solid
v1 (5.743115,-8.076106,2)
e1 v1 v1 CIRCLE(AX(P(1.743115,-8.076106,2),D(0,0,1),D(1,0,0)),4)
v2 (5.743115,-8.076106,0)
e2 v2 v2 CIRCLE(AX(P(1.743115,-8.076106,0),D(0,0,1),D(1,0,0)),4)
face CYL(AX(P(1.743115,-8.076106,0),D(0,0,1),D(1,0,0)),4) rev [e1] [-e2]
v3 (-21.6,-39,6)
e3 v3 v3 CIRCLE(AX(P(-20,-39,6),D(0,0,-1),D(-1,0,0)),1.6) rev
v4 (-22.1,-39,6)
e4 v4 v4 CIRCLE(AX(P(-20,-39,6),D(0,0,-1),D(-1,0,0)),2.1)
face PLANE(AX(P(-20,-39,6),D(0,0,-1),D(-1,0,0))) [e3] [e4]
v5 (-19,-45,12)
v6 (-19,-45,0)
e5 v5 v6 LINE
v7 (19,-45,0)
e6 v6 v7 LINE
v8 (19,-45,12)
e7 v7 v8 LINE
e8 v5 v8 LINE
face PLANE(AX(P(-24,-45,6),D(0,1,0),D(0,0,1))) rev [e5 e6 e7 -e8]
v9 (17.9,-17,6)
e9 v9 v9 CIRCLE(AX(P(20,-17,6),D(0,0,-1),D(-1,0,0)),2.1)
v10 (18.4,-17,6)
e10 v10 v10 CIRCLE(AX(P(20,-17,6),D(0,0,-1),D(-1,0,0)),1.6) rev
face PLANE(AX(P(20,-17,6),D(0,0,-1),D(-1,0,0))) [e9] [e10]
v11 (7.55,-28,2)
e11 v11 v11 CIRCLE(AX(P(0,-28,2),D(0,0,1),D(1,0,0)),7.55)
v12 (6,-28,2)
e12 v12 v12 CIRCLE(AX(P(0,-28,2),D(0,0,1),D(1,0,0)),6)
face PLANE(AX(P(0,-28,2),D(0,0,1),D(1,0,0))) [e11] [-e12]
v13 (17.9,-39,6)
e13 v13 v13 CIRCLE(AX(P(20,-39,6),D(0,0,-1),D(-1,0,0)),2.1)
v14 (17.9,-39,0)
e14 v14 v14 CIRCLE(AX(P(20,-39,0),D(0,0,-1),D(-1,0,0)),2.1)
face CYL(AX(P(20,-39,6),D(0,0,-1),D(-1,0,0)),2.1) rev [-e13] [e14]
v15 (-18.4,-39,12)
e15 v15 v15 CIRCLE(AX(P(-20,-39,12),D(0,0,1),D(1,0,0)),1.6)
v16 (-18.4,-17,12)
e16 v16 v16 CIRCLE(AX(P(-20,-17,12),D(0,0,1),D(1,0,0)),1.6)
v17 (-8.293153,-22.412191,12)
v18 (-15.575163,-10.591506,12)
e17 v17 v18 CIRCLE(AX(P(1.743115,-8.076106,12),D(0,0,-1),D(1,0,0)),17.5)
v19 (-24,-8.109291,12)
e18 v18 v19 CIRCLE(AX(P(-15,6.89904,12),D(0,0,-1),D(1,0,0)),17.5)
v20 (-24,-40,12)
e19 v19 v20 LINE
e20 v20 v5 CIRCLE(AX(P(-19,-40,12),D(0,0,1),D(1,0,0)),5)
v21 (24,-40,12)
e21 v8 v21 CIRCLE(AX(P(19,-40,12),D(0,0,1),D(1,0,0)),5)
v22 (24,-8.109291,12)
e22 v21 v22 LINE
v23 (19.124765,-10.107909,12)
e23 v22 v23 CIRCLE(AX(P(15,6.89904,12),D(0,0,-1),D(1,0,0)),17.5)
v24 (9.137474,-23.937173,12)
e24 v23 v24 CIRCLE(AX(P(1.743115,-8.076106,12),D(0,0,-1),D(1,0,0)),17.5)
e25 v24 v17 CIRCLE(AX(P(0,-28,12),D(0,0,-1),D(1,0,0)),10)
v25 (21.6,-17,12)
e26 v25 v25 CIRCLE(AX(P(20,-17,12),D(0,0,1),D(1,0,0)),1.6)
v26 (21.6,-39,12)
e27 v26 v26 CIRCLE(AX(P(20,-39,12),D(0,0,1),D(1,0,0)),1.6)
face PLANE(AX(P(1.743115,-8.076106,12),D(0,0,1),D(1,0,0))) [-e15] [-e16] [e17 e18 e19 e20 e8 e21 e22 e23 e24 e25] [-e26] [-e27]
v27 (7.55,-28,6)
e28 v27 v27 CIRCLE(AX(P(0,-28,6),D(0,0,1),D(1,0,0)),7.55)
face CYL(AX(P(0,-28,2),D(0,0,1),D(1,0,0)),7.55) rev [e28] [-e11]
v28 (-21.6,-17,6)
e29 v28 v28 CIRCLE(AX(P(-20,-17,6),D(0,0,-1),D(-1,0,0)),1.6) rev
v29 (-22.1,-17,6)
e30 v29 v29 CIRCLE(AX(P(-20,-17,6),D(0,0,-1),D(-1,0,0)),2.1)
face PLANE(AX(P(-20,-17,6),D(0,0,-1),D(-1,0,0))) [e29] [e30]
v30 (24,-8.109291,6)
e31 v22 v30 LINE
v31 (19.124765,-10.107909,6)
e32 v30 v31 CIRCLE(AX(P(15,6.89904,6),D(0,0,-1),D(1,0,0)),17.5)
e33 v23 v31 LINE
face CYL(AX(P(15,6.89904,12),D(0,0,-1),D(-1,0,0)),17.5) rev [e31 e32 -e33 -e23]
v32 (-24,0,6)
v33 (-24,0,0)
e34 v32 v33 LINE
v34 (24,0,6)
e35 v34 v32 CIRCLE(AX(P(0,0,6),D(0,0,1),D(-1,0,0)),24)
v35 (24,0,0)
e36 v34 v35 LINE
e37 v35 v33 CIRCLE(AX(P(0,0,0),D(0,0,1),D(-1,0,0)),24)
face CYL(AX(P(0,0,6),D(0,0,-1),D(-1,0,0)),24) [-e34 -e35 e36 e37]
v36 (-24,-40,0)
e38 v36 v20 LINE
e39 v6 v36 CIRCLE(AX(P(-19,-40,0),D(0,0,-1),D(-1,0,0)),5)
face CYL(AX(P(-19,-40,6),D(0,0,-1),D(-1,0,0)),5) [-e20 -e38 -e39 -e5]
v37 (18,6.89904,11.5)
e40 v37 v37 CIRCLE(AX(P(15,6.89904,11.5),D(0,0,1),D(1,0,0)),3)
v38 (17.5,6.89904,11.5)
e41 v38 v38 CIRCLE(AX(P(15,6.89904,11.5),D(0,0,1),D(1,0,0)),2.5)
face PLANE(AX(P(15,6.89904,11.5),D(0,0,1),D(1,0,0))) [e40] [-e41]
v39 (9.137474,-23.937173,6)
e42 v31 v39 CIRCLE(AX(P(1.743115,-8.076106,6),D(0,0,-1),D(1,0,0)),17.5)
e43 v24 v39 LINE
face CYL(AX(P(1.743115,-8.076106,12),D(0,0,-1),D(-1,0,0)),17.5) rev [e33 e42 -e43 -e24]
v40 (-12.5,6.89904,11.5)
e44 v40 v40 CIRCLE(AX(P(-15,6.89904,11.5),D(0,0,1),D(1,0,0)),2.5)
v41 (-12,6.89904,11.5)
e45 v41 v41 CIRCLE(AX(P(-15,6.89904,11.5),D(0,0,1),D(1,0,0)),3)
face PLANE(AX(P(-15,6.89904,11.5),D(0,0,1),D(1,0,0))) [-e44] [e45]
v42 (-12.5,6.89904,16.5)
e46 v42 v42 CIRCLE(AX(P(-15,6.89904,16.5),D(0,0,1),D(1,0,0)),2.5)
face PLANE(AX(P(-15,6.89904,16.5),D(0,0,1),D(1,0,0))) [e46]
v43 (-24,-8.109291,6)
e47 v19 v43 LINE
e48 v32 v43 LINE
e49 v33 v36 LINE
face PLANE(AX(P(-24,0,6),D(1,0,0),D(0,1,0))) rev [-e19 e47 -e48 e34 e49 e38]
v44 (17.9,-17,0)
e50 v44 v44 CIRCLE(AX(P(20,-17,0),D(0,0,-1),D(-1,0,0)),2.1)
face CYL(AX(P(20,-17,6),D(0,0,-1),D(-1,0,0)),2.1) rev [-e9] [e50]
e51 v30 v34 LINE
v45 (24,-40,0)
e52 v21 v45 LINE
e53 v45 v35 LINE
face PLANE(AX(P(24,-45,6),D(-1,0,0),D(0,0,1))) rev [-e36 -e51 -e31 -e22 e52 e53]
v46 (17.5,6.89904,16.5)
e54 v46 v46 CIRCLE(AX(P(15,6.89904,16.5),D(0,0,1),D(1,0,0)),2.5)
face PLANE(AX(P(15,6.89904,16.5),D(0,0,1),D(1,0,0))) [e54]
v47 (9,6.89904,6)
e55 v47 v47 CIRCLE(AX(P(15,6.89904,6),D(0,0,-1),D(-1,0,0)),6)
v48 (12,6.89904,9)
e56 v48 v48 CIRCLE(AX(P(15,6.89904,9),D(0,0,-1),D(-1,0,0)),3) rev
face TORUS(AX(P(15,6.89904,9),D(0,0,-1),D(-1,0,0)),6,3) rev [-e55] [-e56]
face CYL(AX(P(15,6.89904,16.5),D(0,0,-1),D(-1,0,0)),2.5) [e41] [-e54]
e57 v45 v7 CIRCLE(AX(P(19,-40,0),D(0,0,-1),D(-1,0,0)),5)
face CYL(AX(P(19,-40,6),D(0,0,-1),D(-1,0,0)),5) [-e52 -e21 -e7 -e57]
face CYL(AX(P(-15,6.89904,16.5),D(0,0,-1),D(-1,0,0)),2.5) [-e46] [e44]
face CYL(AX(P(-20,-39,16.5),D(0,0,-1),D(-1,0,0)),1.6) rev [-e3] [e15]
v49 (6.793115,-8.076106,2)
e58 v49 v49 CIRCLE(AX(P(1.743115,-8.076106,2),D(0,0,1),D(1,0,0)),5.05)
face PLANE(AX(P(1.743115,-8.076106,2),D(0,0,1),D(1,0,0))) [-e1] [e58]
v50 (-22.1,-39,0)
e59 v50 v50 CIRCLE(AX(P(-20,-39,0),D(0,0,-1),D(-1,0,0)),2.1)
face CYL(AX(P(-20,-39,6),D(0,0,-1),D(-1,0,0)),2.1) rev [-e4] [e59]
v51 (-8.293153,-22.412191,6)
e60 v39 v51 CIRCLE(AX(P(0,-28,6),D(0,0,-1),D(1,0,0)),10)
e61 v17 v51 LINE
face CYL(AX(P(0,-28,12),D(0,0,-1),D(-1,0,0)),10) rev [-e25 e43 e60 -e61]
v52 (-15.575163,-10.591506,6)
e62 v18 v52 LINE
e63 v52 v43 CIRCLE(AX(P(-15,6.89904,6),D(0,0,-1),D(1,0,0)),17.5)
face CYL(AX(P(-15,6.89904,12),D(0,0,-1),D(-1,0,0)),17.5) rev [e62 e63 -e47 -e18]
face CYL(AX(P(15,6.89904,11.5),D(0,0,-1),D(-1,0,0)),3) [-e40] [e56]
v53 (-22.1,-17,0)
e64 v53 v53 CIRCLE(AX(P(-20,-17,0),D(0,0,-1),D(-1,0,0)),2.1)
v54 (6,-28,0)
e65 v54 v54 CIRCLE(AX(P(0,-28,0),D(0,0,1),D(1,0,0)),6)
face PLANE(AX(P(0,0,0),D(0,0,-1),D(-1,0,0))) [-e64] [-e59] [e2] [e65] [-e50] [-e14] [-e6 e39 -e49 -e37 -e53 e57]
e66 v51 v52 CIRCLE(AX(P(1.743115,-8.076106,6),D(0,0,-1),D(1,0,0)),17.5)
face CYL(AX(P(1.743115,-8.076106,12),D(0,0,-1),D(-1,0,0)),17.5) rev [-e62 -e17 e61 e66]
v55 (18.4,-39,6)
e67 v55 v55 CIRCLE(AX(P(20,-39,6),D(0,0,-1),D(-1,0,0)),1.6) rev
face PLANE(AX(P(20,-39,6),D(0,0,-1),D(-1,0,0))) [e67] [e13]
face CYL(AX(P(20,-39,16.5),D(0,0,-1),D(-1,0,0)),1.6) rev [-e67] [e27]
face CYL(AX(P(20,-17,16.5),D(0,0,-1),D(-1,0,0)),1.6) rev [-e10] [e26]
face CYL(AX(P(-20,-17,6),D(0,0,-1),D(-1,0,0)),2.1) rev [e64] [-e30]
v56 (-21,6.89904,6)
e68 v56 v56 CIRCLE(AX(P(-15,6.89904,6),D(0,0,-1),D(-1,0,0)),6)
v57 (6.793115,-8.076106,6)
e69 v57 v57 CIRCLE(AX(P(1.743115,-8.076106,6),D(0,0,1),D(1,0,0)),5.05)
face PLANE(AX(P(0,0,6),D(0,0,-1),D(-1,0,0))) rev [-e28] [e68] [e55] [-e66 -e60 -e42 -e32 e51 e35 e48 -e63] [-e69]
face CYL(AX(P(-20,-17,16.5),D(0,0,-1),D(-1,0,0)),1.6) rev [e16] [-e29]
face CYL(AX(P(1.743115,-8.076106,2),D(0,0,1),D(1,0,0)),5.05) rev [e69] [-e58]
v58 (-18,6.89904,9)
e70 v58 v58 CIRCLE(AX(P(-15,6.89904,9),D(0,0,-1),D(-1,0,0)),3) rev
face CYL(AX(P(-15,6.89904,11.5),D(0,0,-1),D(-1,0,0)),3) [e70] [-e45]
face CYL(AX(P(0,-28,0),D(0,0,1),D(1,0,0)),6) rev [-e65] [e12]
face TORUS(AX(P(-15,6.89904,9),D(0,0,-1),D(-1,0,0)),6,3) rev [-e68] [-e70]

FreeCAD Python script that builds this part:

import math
import FreeCAD as App
import Part
import Sketcher

V = App.Vector
Q = App.Units.Quantity


def edges_at(feature, points):
    """Names of the edges that pass closest to the given points."""
    edges = feature.Shape.Edges
    near = lambda p: min(range(len(edges)), key=lambda i: edges[i].distToShape(Part.Vertex(*p))[0])
    return sorted({f"Edge{near(p) + 1}" for p in points})

doc = App.newDocument("Part")
body = doc.addObject("PartDesign::Body", "Body")

# Sketch on XY plane
sketch1 = doc.addObject("Sketcher::SketchObject", "Sketch")
body.addObject(sketch1)
sketch1.AttachmentSupport = (doc.XY_Plane, [""])
sketch1.MapMode = "FlatFace"
sketch1.addGeometry([
    Part.LineSegment(V(-24, 0, 0), V(-24, -45, 0)),
    Part.LineSegment(V(-24, -45, 0), V(24, -45, 0)),
    Part.LineSegment(V(24, -45, 0), V(24, 0, 0)),
    Part.ArcOfCircle(Part.Circle(V(0, 0, 0), V(0, 0, 1), 24), math.radians(0), math.radians(180)),
], False)
sketch1.addConstraint([
    Sketcher.Constraint("Coincident", 0, 2, 1, 1),
    Sketcher.Constraint("Coincident", 1, 2, 2, 1),
    Sketcher.Constraint("Tangent", 2, 2, 3, 1),
    Sketcher.Constraint("Tangent", 3, 2, 0, 1),
    Sketcher.Constraint("Vertical", 0),
    Sketcher.Constraint("Horizontal", 1),
    Sketcher.Constraint("Vertical", 2),
    Sketcher.Constraint("Coincident", 3, 3, -1, 1),
    Sketcher.Constraint("Radius", 3, Q("24 mm")),
    Sketcher.Constraint("DistanceY", 0, 2, 0, 1, Q("45 mm")),
])
pad1 = doc.addObject("PartDesign::Pad", "Pad")
body.addObject(pad1)
pad1.Profile = sketch1
pad1.Length = 6

# Sketch on XY plane
sketch2 = doc.addObject("Sketcher::SketchObject", "Sketch001")
body.addObject(sketch2)
sketch2.AttachmentSupport = (doc.XY_Plane, [""])
sketch2.MapMode = "FlatFace"
sketch2.AttachmentOffset = App.Placement(V(0, 0, 6), App.Rotation())
sketch2.addGeometry([
    Part.Circle(V(-15, 6.89904, 0), V(0, 0, 1), 3),
    Part.Circle(V(15, 6.89904, 0), V(0, 0, 1), 3),
], False)
sketch2.addConstraint([
    Sketcher.Constraint("Equal", 0, 1),
    Sketcher.Constraint("Symmetric", 0, 3, 1, 3, -2),
    Sketcher.Constraint("Diameter", 0, Q("6 mm")),
    Sketcher.Constraint("DistanceX", 0, 3, -1, 1, Q("15 mm")),
    Sketcher.Constraint("DistanceY", -1, 1, 0, 3, Q("6.89904 mm")),
])
pad2 = doc.addObject("PartDesign::Pad", "Pad001")
body.addObject(pad2)
pad2.Profile = sketch2
pad2.Length = 5.5

# Sketch on XY plane
sketch3 = doc.addObject("Sketcher::SketchObject", "Sketch002")
body.addObject(sketch3)
sketch3.AttachmentSupport = (doc.XY_Plane, [""])
sketch3.MapMode = "FlatFace"
sketch3.AttachmentOffset = App.Placement(V(0, 0, 11.5), App.Rotation())
sketch3.addGeometry([
    Part.Circle(V(-15, 6.89904, 0), V(0, 0, 1), 2.5),
    Part.Circle(V(15, 6.89904, 0), V(0, 0, 1), 2.5),
], False)
sketch3.addConstraint([
    Sketcher.Constraint("Equal", 0, 1),
    Sketcher.Constraint("Symmetric", 0, 3, 1, 3, -2),
    Sketcher.Constraint("Diameter", 0, Q("5 mm")),
    Sketcher.Constraint("DistanceX", 0, 3, -1, 1, Q("15 mm")),
    Sketcher.Constraint("DistanceY", -1, 1, 0, 3, Q("6.89904 mm")),
])
pad3 = doc.addObject("PartDesign::Pad", "Pad002")
body.addObject(pad3)
pad3.Profile = sketch3
pad3.Length = 5

# Sketch on XY plane
sketch4 = doc.addObject("Sketcher::SketchObject", "Sketch003")
body.addObject(sketch4)
sketch4.AttachmentSupport = (doc.XY_Plane, [""])
sketch4.MapMode = "FlatFace"
sketch4.AttachmentOffset = App.Placement(V(0, 0, 6), App.Rotation())
sketch4.addGeometry(Part.Circle(V(1.743115, -8.076106, 0), V(0, 0, 1), 5.05), False)
sketch4.addConstraint([
    Sketcher.Constraint("Diameter", 0, Q("10.1 mm")),
    Sketcher.Constraint("DistanceX", -1, 1, 0, 3, Q("1.743115 mm")),
    Sketcher.Constraint("DistanceY", 0, 3, -1, 1, Q("8.076106 mm")),
])
pocket1 = doc.addObject("PartDesign::Pocket", "Pocket")
body.addObject(pocket1)
pocket1.Profile = sketch4
pocket1.Length = 4

# Sketch on XY plane
sketch5 = doc.addObject("Sketcher::SketchObject", "Sketch004")
body.addObject(sketch5)
sketch5.AttachmentSupport = (doc.XY_Plane, [""])
sketch5.MapMode = "FlatFace"
sketch5.AttachmentOffset = App.Placement(V(0, 0, 2), App.Rotation())
sketch5.addGeometry(Part.Circle(V(1.743115, -8.076106, 0), V(0, 0, 1), 4), False)
sketch5.addConstraint([
    Sketcher.Constraint("Diameter", 0, Q("8 mm")),
    Sketcher.Constraint("DistanceX", -1, 1, 0, 3, Q("1.743115 mm")),
    Sketcher.Constraint("DistanceY", 0, 3, -1, 1, Q("8.076106 mm")),
])
pocket2 = doc.addObject("PartDesign::Pocket", "Pocket001")
body.addObject(pocket2)
pocket2.Profile = sketch5
pocket2.Type = "ThroughAll"

# Sketch on XY plane
sketch6 = doc.addObject("Sketcher::SketchObject", "Sketch005")
body.addObject(sketch6)
sketch6.AttachmentSupport = (doc.XY_Plane, [""])
sketch6.MapMode = "FlatFace"
sketch6.AttachmentOffset = App.Placement(V(0, 0, 6), App.Rotation())
sketch6.addGeometry(Part.Circle(V(0, -28, 0), V(0, 0, 1), 7.55), False)
sketch6.addConstraint([
    Sketcher.Constraint("PointOnObject", 0, 3, -2),
    Sketcher.Constraint("Diameter", 0, Q("15.1 mm")),
    Sketcher.Constraint("DistanceY", 0, 3, -1, 1, Q("28 mm")),
])
pocket3 = doc.addObject("PartDesign::Pocket", "Pocket002")
body.addObject(pocket3)
pocket3.Profile = sketch6
pocket3.Length = 4

# Sketch on XY plane
sketch7 = doc.addObject("Sketcher::SketchObject", "Sketch006")
body.addObject(sketch7)
sketch7.AttachmentSupport = (doc.XY_Plane, [""])
sketch7.MapMode = "FlatFace"
sketch7.AttachmentOffset = App.Placement(V(0, 0, 2), App.Rotation())
sketch7.addGeometry(Part.Circle(V(0, -28, 0), V(0, 0, 1), 6), False)
sketch7.addConstraint([
    Sketcher.Constraint("PointOnObject", 0, 3, -2),
    Sketcher.Constraint("Diameter", 0, Q("12 mm")),
    Sketcher.Constraint("DistanceY", 0, 3, -1, 1, Q("28 mm")),
])
pocket4 = doc.addObject("PartDesign::Pocket", "Pocket003")
body.addObject(pocket4)
pocket4.Profile = sketch7
pocket4.Type = "ThroughAll"
doc.recompute()

fillet = doc.addObject("PartDesign::Fillet", "Fillet")
body.addObject(fillet)
fillet.Base = (pocket4, edges_at(pocket4, [(-18, 6.899, 6), (12, 6.899, 6)]))
fillet.Radius = 3

# Sketch on XY plane
sketch8 = doc.addObject("Sketcher::SketchObject", "Sketch007")
body.addObject(sketch8)
sketch8.AttachmentSupport = (doc.XY_Plane, [""])
sketch8.MapMode = "FlatFace"
sketch8.AttachmentOffset = App.Placement(V(0, 0, 6), App.Rotation())
sketch8.addGeometry([
    Part.LineSegment(V(24, -45, 0), V(24, -8.109291, 0)),  # 0
    Part.ArcOfCircle(Part.Circle(V(15, 6.89904, 0), V(0, 0, 1), 17.5), math.radians(-76.367059), math.radians(-59.050277)),  # 1
    Part.ArcOfCircle(Part.Circle(V(1.743115, -8.076106, 0), V(0, 0, 1), 17.5), math.radians(-65.005274), math.radians(-6.66725)),  # 2
    Part.ArcOfCircle(Part.Circle(V(0, -28, 0), V(0, 0, 1), 10), math.radians(146.028468), math.radians(383.971532)),  # 3
    Part.ArcOfCircle(Part.Circle(V(1.743115, -8.076106, 0), V(0, 0, 1), 17.5), math.radians(-171.735844), math.radians(-124.994726)),  # 4
    Part.ArcOfCircle(Part.Circle(V(-15, 6.89904, 0), V(0, 0, 1), 17.5), math.radians(-120.949723), math.radians(-91.88345)),  # 5
    Part.LineSegment(V(-24, -8.109291, 0), V(-24, -45, 0)),  # 6
    Part.LineSegment(V(-24, -45, 0), V(24, -45, 0)),  # 7
], False)
sketch8.addConstraint([
    Sketcher.Constraint("Coincident", 0, 2, 1, 2),
    Sketcher.Constraint("Coincident", 1, 1, 2, 2),
    Sketcher.Constraint("Coincident", 2, 1, 3, 2),
    Sketcher.Constraint("Coincident", 3, 1, 4, 2),
    Sketcher.Constraint("Coincident", 4, 1, 5, 2),
    Sketcher.Constraint("Coincident", 5, 1, 6, 1),
    Sketcher.Constraint("Coincident", 6, 2, 7, 1),
    Sketcher.Constraint("Coincident", 7, 2, 0, 1),
    Sketcher.Constraint("Vertical", 0),
    Sketcher.Constraint("Vertical", 6),
    Sketcher.Constraint("Horizontal", 7),
    Sketcher.Constraint("Coincident", 4, 3, 2, 3),
    Sketcher.Constraint("Equal", 1, 2),
    Sketcher.Constraint("Equal", 2, 4),
    Sketcher.Constraint("Equal", 4, 5),
    Sketcher.Constraint("Symmetric", 1, 3, 5, 3, -2),
    Sketcher.Constraint("PointOnObject", 3, 3, -2),
    Sketcher.Constraint("Horizontal", 0, 2, 5, 1),
    Sketcher.Constraint("Radius", 3, Q("10 mm")),
    Sketcher.Constraint("Radius", 1, Q("17.5 mm")),
    Sketcher.Constraint("DistanceX", 7, 1, 7, 2, Q("48 mm")),
    Sketcher.Constraint("DistanceX", -1, 1, 1, 3, Q("15 mm")),
    Sketcher.Constraint("DistanceY", 3, 3, -1, 1, Q("28 mm")),
    Sketcher.Constraint("DistanceY", 6, 2, -1, 1, Q("45 mm")),
    Sketcher.Constraint("DistanceY", 0, 1, 0, 2, Q("36.890709 mm")),
    Sketcher.Constraint("DistanceY", 4, 1, 2, 3, Q("2.5154 mm")),
    Sketcher.Constraint("DistanceY", 3, 1, 5, 1, Q("14.3029 mm")),
])
pad4 = doc.addObject("PartDesign::Pad", "Pad003")
body.addObject(pad4)
pad4.Profile = sketch8
pad4.Length = 6

# Sketch on XY plane
sketch9 = doc.addObject("Sketcher::SketchObject", "Sketch008")
body.addObject(sketch9)
sketch9.AttachmentSupport = (doc.XY_Plane, [""])
sketch9.MapMode = "FlatFace"
sketch9.addGeometry([
    Part.Circle(V(20, -39, 0), V(0, 0, 1), 1.6),
    Part.Circle(V(20, -17, 0), V(0, 0, 1), 1.6),
    Part.Circle(V(-20, -39, 0), V(0, 0, 1), 1.6),
    Part.Circle(V(-20, -17, 0), V(0, 0, 1), 1.6),
], False)
sketch9.addConstraint([
    Sketcher.Constraint("Equal", 0, 1),
    Sketcher.Constraint("Equal", 1, 2),
    Sketcher.Constraint("Equal", 2, 3),
    Sketcher.Constraint("Symmetric", 0, 3, 2, 3, -2),
    Sketcher.Constraint("Symmetric", 1, 3, 3, 3, -2),
    Sketcher.Constraint("Vertical", 0, 3, 1, 3),
    Sketcher.Constraint("Diameter", 0, Q("3.2 mm")),
    Sketcher.Constraint("DistanceX", -1, 1, 0, 3, Q("20 mm")),
    Sketcher.Constraint("DistanceY", 0, 3, -1, 1, Q("39 mm")),
    Sketcher.Constraint("DistanceY", 1, 3, -1, 1, Q("17 mm")),
])
pocket5 = doc.addObject("PartDesign::Pocket", "Pocket004")
body.addObject(pocket5)
pocket5.Profile = sketch9
pocket5.Type = "ThroughAll"
pocket5.Reversed = True

# Sketch on XY plane
sketch10 = doc.addObject("Sketcher::SketchObject", "Sketch009")
body.addObject(sketch10)
sketch10.AttachmentSupport = (doc.XY_Plane, [""])
sketch10.MapMode = "FlatFace"
sketch10.addGeometry([
    Part.Circle(V(20, -17, 0), V(0, 0, 1), 2.1),
    Part.Circle(V(20, -39, 0), V(0, 0, 1), 2.1),
    Part.Circle(V(-20, -17, 0), V(0, 0, 1), 2.1),
    Part.Circle(V(-20, -39, 0), V(0, 0, 1), 2.1),
], False)
sketch10.addConstraint([
    Sketcher.Constraint("Equal", 0, 1),
    Sketcher.Constraint("Equal", 1, 2),
    Sketcher.Constraint("Equal", 2, 3),
    Sketcher.Constraint("Symmetric", 0, 3, 2, 3, -2),
    Sketcher.Constraint("Symmetric", 1, 3, 3, 3, -2),
    Sketcher.Constraint("Vertical", 0, 3, 1, 3),
    Sketcher.Constraint("Diameter", 0, Q("4.2 mm")),
    Sketcher.Constraint("DistanceX", -1, 1, 0, 3, Q("20 mm")),
    Sketcher.Constraint("DistanceY", 0, 3, -1, 1, Q("17 mm")),
    Sketcher.Constraint("DistanceY", 1, 3, -1, 1, Q("39 mm")),
])
pocket6 = doc.addObject("PartDesign::Pocket", "Pocket005")
body.addObject(pocket6)
pocket6.Profile = sketch10
pocket6.Length = 6
pocket6.Reversed = True
doc.recompute()

fillet2 = doc.addObject("PartDesign::Fillet", "Fillet001")
body.addObject(fillet2)
fillet2.Base = (pocket6, edges_at(pocket6, [(24, -45, 6), (-24, -45, 6)]))
fillet2.Radius = 5

doc.recompute()
